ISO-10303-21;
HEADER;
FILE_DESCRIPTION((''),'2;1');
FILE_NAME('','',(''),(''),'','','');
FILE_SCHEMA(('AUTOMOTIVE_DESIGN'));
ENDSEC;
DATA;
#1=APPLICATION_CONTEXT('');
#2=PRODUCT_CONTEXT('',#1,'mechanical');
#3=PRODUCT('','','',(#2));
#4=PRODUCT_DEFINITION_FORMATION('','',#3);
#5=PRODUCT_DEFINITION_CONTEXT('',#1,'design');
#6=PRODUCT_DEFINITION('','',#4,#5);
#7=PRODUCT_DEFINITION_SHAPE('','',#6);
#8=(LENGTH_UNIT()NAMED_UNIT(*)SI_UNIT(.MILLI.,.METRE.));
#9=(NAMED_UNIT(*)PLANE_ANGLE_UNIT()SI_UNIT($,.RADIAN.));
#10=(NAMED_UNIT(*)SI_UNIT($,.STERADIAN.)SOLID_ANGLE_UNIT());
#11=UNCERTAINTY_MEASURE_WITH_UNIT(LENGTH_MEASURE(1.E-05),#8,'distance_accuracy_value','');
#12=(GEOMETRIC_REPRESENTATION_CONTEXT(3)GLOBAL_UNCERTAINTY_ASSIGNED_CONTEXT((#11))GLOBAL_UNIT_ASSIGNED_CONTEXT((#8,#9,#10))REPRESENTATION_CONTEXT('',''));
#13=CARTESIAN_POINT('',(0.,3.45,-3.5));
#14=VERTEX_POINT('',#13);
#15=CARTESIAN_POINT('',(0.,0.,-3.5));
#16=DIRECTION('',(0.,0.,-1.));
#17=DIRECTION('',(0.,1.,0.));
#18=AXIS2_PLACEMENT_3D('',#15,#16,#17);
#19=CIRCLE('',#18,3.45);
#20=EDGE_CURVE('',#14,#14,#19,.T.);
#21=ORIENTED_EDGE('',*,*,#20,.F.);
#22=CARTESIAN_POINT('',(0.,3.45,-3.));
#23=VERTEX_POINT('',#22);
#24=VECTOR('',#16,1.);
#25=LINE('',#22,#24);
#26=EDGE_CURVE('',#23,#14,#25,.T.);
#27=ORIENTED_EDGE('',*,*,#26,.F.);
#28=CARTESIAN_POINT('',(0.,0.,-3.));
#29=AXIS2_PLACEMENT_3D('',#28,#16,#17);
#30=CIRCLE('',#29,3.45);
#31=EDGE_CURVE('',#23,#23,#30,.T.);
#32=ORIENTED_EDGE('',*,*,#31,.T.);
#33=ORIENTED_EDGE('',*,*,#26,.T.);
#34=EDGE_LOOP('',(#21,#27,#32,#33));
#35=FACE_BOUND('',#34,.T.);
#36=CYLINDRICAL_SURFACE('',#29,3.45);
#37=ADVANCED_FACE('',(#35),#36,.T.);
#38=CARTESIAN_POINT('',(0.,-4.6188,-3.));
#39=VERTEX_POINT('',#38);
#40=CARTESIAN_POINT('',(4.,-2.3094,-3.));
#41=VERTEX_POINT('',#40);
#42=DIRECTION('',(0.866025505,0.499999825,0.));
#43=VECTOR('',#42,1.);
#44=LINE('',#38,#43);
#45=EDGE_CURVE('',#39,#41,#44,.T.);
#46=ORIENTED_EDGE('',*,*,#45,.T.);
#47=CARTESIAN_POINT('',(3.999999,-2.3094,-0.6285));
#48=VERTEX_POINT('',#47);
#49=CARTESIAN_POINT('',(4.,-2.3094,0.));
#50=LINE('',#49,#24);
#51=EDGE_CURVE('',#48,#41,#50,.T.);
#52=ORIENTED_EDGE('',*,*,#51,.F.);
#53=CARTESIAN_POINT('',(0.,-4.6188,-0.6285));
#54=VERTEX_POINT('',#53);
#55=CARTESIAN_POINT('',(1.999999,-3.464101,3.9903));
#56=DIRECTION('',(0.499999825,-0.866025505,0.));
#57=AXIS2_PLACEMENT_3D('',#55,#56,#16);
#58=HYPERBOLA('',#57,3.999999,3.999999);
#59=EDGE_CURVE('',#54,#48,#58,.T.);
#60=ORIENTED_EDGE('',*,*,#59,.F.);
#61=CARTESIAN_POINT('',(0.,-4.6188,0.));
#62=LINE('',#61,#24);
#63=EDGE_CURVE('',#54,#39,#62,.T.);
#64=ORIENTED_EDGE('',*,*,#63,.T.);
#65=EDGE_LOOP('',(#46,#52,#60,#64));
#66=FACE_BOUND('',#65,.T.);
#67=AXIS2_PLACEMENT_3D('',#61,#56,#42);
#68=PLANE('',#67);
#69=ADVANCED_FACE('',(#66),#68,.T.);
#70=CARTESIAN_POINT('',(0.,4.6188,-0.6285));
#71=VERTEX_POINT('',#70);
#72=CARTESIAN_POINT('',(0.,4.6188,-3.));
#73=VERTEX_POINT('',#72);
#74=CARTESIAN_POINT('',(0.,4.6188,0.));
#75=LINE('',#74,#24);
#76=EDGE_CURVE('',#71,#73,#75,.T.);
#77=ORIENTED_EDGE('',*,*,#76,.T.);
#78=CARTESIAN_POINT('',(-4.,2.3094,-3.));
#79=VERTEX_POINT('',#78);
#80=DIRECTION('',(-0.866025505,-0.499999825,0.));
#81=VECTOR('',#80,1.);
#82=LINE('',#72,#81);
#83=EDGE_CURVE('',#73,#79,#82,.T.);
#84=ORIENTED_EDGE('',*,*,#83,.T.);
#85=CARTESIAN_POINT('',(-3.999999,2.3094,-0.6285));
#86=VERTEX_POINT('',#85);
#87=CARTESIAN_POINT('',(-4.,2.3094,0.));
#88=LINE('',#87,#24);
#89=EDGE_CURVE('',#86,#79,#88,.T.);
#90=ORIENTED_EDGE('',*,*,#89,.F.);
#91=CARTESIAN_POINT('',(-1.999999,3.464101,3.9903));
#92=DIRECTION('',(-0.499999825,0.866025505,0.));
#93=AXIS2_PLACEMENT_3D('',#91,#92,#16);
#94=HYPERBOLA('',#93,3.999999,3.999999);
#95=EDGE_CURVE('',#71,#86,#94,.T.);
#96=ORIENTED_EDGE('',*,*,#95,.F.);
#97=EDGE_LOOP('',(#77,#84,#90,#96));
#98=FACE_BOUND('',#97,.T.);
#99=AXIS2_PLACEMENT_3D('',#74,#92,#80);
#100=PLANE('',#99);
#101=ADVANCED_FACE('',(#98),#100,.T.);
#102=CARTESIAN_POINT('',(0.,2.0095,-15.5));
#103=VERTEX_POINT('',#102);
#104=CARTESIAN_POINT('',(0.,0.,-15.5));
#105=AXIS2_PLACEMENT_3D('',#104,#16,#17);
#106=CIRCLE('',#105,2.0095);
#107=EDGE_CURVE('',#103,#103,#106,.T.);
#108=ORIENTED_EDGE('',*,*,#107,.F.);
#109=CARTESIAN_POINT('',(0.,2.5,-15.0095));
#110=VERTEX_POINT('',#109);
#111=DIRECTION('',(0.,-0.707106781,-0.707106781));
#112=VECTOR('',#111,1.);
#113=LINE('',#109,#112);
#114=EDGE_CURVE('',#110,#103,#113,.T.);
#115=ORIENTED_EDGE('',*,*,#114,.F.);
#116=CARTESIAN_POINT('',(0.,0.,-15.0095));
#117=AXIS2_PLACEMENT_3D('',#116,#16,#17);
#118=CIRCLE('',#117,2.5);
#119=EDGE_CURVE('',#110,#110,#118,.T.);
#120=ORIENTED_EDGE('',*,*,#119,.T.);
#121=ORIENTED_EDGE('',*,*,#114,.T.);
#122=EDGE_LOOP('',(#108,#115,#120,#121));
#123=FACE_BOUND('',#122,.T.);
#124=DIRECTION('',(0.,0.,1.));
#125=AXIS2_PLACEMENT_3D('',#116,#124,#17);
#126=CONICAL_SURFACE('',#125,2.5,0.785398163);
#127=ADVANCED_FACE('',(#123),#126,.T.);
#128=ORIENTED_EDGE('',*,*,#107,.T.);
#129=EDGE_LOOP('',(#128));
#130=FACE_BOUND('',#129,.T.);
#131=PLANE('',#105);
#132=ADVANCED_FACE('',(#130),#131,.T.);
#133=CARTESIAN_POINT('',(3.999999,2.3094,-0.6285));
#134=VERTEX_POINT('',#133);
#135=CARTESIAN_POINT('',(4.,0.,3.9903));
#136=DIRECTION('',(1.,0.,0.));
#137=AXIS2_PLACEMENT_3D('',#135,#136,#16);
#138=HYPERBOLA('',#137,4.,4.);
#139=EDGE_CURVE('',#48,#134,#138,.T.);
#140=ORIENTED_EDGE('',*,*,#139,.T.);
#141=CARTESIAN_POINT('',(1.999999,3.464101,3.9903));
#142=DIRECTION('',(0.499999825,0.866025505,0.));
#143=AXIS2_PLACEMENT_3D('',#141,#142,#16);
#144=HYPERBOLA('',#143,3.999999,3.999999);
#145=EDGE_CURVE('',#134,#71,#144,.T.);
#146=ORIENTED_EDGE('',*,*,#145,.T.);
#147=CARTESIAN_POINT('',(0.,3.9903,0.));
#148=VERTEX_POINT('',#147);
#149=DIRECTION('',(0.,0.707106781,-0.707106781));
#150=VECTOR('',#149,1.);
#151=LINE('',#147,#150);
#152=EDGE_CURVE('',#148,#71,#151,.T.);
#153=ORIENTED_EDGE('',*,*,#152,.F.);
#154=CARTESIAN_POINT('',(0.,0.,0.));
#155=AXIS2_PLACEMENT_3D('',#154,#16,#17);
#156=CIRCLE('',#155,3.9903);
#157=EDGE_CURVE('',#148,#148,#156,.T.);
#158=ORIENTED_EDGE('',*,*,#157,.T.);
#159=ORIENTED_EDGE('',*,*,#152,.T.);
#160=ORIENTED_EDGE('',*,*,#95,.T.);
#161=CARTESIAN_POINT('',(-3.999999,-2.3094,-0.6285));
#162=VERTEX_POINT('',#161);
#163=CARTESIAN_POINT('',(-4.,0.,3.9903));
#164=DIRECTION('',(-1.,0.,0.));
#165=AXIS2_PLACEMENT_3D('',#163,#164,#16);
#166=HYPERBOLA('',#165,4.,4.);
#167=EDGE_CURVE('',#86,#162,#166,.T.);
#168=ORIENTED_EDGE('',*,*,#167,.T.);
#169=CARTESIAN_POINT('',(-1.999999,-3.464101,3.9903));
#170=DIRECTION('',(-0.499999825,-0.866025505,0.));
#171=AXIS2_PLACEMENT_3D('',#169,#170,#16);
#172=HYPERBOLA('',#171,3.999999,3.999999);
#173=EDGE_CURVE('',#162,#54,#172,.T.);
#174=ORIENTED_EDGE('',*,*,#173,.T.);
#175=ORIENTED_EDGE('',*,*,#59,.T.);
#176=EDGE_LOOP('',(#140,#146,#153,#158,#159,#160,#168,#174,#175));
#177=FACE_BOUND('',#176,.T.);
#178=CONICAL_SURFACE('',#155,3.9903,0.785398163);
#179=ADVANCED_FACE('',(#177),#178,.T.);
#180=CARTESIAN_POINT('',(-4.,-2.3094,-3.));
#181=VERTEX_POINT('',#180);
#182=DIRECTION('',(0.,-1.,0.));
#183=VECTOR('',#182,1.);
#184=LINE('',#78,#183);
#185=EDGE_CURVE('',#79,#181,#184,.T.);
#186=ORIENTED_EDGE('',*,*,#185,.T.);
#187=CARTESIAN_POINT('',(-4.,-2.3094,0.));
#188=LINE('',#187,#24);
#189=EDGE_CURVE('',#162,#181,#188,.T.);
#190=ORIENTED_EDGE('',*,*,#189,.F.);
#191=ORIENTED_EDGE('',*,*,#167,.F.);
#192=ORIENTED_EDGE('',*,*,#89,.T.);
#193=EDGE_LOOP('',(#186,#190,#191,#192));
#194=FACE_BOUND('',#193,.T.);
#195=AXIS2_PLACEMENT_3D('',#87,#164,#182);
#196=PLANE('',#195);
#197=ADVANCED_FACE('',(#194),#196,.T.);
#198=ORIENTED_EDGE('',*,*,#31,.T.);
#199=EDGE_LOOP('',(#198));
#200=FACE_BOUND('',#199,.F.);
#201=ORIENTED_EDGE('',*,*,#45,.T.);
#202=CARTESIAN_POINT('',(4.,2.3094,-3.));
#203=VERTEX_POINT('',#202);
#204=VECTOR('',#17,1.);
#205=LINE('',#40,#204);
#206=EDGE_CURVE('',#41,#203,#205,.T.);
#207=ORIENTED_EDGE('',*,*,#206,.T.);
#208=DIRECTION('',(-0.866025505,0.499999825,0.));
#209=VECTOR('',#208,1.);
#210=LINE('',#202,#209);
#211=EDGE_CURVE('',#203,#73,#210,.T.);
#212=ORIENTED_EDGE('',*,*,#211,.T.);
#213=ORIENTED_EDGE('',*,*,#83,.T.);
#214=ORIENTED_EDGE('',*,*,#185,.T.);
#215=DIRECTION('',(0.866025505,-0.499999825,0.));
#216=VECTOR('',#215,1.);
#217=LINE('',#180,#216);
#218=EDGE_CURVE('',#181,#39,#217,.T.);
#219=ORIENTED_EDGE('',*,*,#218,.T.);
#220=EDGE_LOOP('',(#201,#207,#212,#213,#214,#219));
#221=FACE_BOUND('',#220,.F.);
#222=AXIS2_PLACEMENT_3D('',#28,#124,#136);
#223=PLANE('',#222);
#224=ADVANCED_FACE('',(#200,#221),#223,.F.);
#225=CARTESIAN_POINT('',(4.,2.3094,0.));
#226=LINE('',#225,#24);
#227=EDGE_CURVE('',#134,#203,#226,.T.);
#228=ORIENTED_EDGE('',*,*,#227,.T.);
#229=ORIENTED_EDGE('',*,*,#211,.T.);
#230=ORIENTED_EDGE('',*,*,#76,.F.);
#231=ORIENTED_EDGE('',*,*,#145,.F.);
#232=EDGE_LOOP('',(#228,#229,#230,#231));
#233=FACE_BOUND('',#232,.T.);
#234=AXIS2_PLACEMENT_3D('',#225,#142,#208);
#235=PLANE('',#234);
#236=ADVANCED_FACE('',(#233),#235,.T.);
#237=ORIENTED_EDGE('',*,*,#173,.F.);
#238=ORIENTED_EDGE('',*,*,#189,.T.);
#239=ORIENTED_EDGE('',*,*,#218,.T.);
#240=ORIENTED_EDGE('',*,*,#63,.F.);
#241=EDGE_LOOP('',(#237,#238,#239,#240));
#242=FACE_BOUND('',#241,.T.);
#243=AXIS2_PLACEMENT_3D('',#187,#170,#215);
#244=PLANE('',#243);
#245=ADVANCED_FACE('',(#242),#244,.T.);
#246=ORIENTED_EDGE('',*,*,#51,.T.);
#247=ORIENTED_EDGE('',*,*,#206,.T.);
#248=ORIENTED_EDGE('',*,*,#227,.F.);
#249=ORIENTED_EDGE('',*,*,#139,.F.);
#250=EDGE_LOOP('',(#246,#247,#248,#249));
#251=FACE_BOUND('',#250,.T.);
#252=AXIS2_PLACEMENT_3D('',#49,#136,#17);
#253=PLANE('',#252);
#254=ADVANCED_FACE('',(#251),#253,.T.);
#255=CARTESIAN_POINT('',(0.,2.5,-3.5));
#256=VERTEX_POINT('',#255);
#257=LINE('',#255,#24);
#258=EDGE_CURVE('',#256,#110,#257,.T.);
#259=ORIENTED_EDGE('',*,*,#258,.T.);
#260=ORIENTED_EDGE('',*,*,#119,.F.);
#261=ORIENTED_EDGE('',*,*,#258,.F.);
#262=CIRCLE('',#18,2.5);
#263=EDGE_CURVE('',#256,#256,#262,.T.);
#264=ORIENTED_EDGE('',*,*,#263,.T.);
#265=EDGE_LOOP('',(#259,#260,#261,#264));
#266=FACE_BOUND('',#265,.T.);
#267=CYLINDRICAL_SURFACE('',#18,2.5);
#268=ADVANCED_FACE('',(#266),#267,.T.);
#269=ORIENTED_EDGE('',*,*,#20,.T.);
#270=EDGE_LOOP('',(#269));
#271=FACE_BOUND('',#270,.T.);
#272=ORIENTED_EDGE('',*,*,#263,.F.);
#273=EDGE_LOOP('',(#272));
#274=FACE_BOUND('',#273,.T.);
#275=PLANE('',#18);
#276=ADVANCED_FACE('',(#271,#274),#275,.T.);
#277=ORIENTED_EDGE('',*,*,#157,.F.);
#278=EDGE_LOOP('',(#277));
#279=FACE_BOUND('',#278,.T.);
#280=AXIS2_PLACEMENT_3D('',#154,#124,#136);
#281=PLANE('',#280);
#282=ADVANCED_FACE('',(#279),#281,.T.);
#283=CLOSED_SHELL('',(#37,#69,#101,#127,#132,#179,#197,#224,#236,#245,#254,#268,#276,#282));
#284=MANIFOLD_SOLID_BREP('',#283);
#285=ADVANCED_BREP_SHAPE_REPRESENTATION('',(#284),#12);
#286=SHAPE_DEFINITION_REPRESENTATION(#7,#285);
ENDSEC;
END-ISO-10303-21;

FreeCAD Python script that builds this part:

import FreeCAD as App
import Part
import Sketcher

V = App.Vector
Q = App.Units.Quantity

doc = App.newDocument("Part")
body = doc.addObject("PartDesign::Body", "Body")

sketch1 = body.newObject("Sketcher::SketchObject", "Sketch")
sketch1.AttachmentSupport = (doc.getObject("XY_Plane"), [""])
sketch1.MapMode = "FlatFace"
sketch1.addGeometry(Part.LineSegment(V(-4, 2.3, 0), V(-4, -2.3, 0)), False)
sketch1.addGeometry(Part.LineSegment(V(-4, -2.3, 0), V(0, -4.6, 0)), False)
sketch1.addGeometry(Part.LineSegment(V(0, -4.6, 0), V(4, -2.3, 0)), False)
sketch1.addGeometry(Part.LineSegment(V(4, -2.3, 0), V(4, 2.3, 0)), False)
sketch1.addGeometry(Part.LineSegment(V(4, 2.3, 0), V(0, 4.6, 0)), False)
sketch1.addGeometry(Part.LineSegment(V(0, 4.6, 0), V(-4, 2.3, 0)), False)
sketch1.addConstraint(Sketcher.Constraint("Coincident", 0, 2, 1, 1))
sketch1.addConstraint(Sketcher.Constraint("Coincident", 1, 2, 2, 1))
sketch1.addConstraint(Sketcher.Constraint("Coincident", 2, 2, 3, 1))
sketch1.addConstraint(Sketcher.Constraint("Coincident", 3, 2, 4, 1))
sketch1.addConstraint(Sketcher.Constraint("Coincident", 4, 2, 5, 1))
sketch1.addConstraint(Sketcher.Constraint("Coincident", 5, 2, 0, 1))
sketch1.addConstraint(Sketcher.Constraint("Vertical", 0))
sketch1.addConstraint(Sketcher.Constraint("Vertical", 3))
sketch1.addConstraint(Sketcher.Constraint("Symmetric", 0, 2, 3, 2, -1, 1))
sketch1.addConstraint(Sketcher.Constraint("Symmetric", 1, 2, 4, 2, -1, 1))
sketch1.addConstraint(Sketcher.Constraint("PointOnObject", 1, 2, -2))
sketch1.addConstraint(Sketcher.Constraint("Parallel", 2, 5))
sketch1.addConstraint(Sketcher.Constraint("Horizontal", 0, 2, 2, 2))
sketch1.addConstraint(Sketcher.Constraint("Angle", 1, Q("-30 deg")))
sketch1.addConstraint(Sketcher.Constraint("DistanceX", 0, 2, -1, 1, 4.0))
sketch1.addConstraint(Sketcher.Constraint("DistanceY", 0, 2, 0, 1, 4.6188))
pad1 = body.newObject("PartDesign::Pad", "Pad")
pad1.Profile = sketch1
pad1.Length = 3
pad1.Reversed = True

sketch2 = body.newObject("Sketcher::SketchObject", "Sketch001")
sketch2.AttachmentSupport = (doc.getObject("YZ_Plane"), [""])
sketch2.MapMode = "FlatFace"
sketch2.addGeometry(Part.LineSegment(V(0, -3, 0), V(0, -3.5, 0)), False)
sketch2.addGeometry(Part.LineSegment(V(0, -3.5, 0), V(3.5, -3.5, 0)), False)
sketch2.addGeometry(Part.LineSegment(V(3.5, -3.5, 0), V(3.5, -3, 0)), False)
sketch2.addGeometry(Part.LineSegment(V(3.5, -3, 0), V(0, -3, 0)), False)
sketch2.addConstraint(Sketcher.Constraint("Coincident", 0, 2, 1, 1))
sketch2.addConstraint(Sketcher.Constraint("Coincident", 1, 2, 2, 1))
sketch2.addConstraint(Sketcher.Constraint("Coincident", 2, 2, 3, 1))
sketch2.addConstraint(Sketcher.Constraint("Coincident", 3, 2, 0, 1))
sketch2.addConstraint(Sketcher.Constraint("Vertical", 0))
sketch2.addConstraint(Sketcher.Constraint("Horizontal", 1))
sketch2.addConstraint(Sketcher.Constraint("Vertical", 2))
sketch2.addConstraint(Sketcher.Constraint("Horizontal", 3))
sketch2.addConstraint(Sketcher.Constraint("PointOnObject", 0, 2, -2))
sketch2.addConstraint(Sketcher.Constraint("DistanceY", 0, 2, 0, 1, 0.5))
sketch2.addConstraint(Sketcher.Constraint("DistanceY", 2, 2, -1, 1, 3.0))
sketch2.addConstraint(Sketcher.Constraint("DistanceX", 1, 1, 1, 2, 3.45))
revolution = body.newObject("PartDesign::Revolution", "Revolution")
revolution.Profile = sketch2
revolution.ReferenceAxis = (sketch2, ["V_Axis"])
revolution.Angle = 360

sketch3 = body.newObject("Sketcher::SketchObject", "Sketch002")
sketch3.AttachmentSupport = (doc.getObject("YZ_Plane"), [""])
sketch3.MapMode = "FlatFace"
sketch3.addGeometry(Part.LineSegment(V(0, -3.5, 0), V(0, -15.5, 0)), False)
sketch3.addGeometry(Part.LineSegment(V(0, -15.5, 0), V(2, -15.5, 0)), False)
sketch3.addGeometry(Part.LineSegment(V(2, -15.5, 0), V(2.5, -15, 0)), False)
sketch3.addGeometry(Part.LineSegment(V(2.5, -15, 0), V(2.5, -3.5, 0)), False)
sketch3.addGeometry(Part.LineSegment(V(2.5, -3.5, 0), V(0, -3.5, 0)), False)
sketch3.addConstraint(Sketcher.Constraint("Coincident", 0, 2, 1, 1))
sketch3.addConstraint(Sketcher.Constraint("Coincident", 1, 2, 2, 1))
sketch3.addConstraint(Sketcher.Constraint("Coincident", 2, 2, 3, 1))
sketch3.addConstraint(Sketcher.Constraint("Coincident", 3, 2, 4, 1))
sketch3.addConstraint(Sketcher.Constraint("Coincident", 4, 2, 0, 1))
sketch3.addConstraint(Sketcher.Constraint("Vertical", 0))
sketch3.addConstraint(Sketcher.Constraint("Horizontal", 1))
sketch3.addConstraint(Sketcher.Constraint("Vertical", 3))
sketch3.addConstraint(Sketcher.Constraint("Horizontal", 4))
sketch3.addConstraint(Sketcher.Constraint("PointOnObject", 0, 2, -2))
sketch3.addConstraint(Sketcher.Constraint("DistanceY", 0, 2, 0, 1, 12.0))
sketch3.addConstraint(Sketcher.Constraint("Angle", 2, Q("45 deg")))
sketch3.addConstraint(Sketcher.Constraint("DistanceX", 4, 2, 4, 1, 2.5))
sketch3.addConstraint(Sketcher.Constraint("DistanceY", 0, 2, -1, 1, 15.5))
sketch3.addConstraint(Sketcher.Constraint("DistanceX", 1, 1, 1, 2, 2.0095))
revolution2 = body.newObject("PartDesign::Revolution", "Revolution001")
revolution2.Profile = sketch3
revolution2.ReferenceAxis = (sketch3, ["V_Axis"])
revolution2.Angle = 360

sketch4 = body.newObject("Sketcher::SketchObject", "Sketch003")
sketch4.AttachmentSupport = (doc.getObject("YZ_Plane"), [""])
sketch4.MapMode = "FlatFace"
sketch4.addGeometry(Part.LineSegment(V(6.6, 2, 0), V(4, 2, 0)), False)
sketch4.addGeometry(Part.LineSegment(V(4, 2, 0), V(4, 0, 0)), False)
sketch4.addGeometry(Part.LineSegment(V(4, 0, 0), V(4.6, -0.6, 0)), False)
sketch4.addGeometry(Part.LineSegment(V(4.6, -0.6, 0), V(6.6, -0.6, 0)), False)
sketch4.addGeometry(Part.LineSegment(V(6.6, -0.6, 0), V(6.6, 2, 0)), False)
sketch4.addConstraint(Sketcher.Constraint("Coincident", 0, 2, 1, 1))
sketch4.addConstraint(Sketcher.Constraint("Coincident", 1, 2, 2, 1))
sketch4.addConstraint(Sketcher.Constraint("Coincident", 2, 2, 3, 1))
sketch4.addConstraint(Sketcher.Constraint("Coincident", 3, 2, 4, 1))
sketch4.addConstraint(Sketcher.Constraint("Coincident", 4, 2, 0, 1))
sketch4.addConstraint(Sketcher.Constraint("Horizontal", 0))
sketch4.addConstraint(Sketcher.Constraint("Vertical", 1))
sketch4.addConstraint(Sketcher.Constraint("Horizontal", 3))
sketch4.addConstraint(Sketcher.Constraint("Vertical", 4))
sketch4.addConstraint(Sketcher.Constraint("PointOnObject", 1, 2, -1))
sketch4.addConstraint(Sketcher.Constraint("Equal", 3, 1))
sketch4.addConstraint(Sketcher.Constraint("Equal", 0, 4))
sketch4.addConstraint(Sketcher.Constraint("DistanceX", 3, 1, 3, 2, 2.0))
sketch4.addConstraint(Sketcher.Constraint("DistanceX", 0, 2, 0, 1, 2.6285))
sketch4.addConstraint(Sketcher.Constraint("DistanceX", -1, 1, 0, 2, 3.9903))
groove = body.newObject("PartDesign::Groove", "Groove")
groove.Profile = sketch4
groove.ReferenceAxis = (sketch4, ["V_Axis"])
groove.Angle = 360

doc.recompute()
